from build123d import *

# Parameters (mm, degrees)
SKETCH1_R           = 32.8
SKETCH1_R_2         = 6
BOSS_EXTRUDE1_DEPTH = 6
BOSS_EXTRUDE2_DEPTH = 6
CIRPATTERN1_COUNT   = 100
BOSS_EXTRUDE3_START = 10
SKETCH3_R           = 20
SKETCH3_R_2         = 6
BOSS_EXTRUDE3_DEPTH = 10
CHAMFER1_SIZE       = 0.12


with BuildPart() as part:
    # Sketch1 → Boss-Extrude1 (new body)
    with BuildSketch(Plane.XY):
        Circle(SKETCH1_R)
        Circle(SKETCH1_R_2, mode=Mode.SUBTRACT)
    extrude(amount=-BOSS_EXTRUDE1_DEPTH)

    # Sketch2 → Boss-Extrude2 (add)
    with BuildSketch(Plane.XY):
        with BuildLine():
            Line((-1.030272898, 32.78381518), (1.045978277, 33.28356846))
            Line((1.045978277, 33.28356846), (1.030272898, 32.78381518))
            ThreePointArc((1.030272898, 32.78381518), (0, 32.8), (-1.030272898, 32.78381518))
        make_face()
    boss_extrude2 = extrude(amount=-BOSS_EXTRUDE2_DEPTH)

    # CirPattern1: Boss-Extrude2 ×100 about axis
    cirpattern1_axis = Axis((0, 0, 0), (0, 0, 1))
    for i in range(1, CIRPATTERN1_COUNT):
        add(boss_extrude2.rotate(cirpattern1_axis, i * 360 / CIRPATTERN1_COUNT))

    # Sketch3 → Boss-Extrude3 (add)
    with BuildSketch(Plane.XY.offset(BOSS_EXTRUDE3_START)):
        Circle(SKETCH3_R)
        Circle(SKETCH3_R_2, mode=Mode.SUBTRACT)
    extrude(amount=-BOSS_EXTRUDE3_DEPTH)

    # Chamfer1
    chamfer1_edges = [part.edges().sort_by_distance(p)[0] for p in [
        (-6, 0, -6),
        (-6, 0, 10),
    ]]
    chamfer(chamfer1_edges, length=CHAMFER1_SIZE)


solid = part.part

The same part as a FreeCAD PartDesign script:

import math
import FreeCAD as App
import Part
import Sketcher

V = App.Vector
Q = App.Units.Quantity


def edges_at(feature, points):
    """Names of the edges that pass closest to the given points."""
    edges = feature.Shape.Edges
    near = lambda p: min(range(len(edges)), key=lambda i: edges[i].distToShape(Part.Vertex(*p))[0])
    return sorted({f"Edge{near(p) + 1}" for p in points})

doc = App.newDocument("Part")
params = doc.addObject("Spreadsheet::Sheet", "Params")
for row, (alias, value) in enumerate([
    ("sketch1_diameter", "12 mm"),
    ("sketch1_diameter2", "65.6 mm"),
    ("pad1_length", "6 mm"),
    ("sketch2_radius", "32.8 mm"),
    ("sketch2_length", "0.5 mm"),
    ("pad2_length", "6 mm"),
    ("sketch3_diameter", "40 mm"),
    ("sketch3_diameter2", "12 mm"),
    ("pad3_length", "10 mm"),
    ("chamfer_size", "0.12 mm"),
], start=1):
    params.set(f"A{row}", alias)
    params.set(f"B{row}", "=" + value)
    params.setAlias(f"B{row}", alias)

body = doc.addObject("PartDesign::Body", "Body")

sketch1 = body.newObject("Sketcher::SketchObject", "Sketch")
sketch1.AttachmentSupport = (doc.getObject("XY_Plane"), [""])
sketch1.MapMode = "FlatFace"
sketch1.addGeometry(Part.Circle(V(0, 0, 0), V(0, 0, 1), 33), False)
sketch1.addGeometry(Part.Circle(V(0, 0, 0), V(0, 0, 1), 6), False)
sketch1.addConstraint(Sketcher.Constraint("Coincident", 0, 3, -1, 1))
sketch1.addConstraint(Sketcher.Constraint("Coincident", 1, 3, -1, 1))
sketch1.addConstraint(Sketcher.Constraint("Diameter", 1, Q("12 mm")))
sketch1.addConstraint(Sketcher.Constraint("Diameter", 0, Q("65.6 mm")))
sketch1.setExpression("Constraints[2]", "Params.sketch1_diameter")
sketch1.setExpression("Constraints[3]", "Params.sketch1_diameter2")
pad1 = body.newObject("PartDesign::Pad", "Pad")
pad1.Profile = sketch1
pad1.setExpression("Length", "Params.pad1_length")
pad1.Reversed = True

sketch2 = body.newObject("Sketcher::SketchObject", "Sketch001")
sketch2.AttachmentSupport = (doc.getObject("XY_Plane"), [""])
sketch2.MapMode = "FlatFace"
sketch2.addGeometry(Part.LineSegment(V(1.05, 33.28, 0), V(-1.03, 32.78, 0)), False)
sketch2.addGeometry(Part.ArcOfCircle(Part.Circle(V(0, 0, 0), V(0, 0, 1), 32.8), math.radians(88.2), math.radians(91.8)), False)
sketch2.addGeometry(Part.LineSegment(V(1.03, 32.78, 0), V(1.05, 33.28, 0)), False)
sketch2.addConstraint(Sketcher.Constraint("Coincident", 0, 2, 1, 2))
sketch2.addConstraint(Sketcher.Constraint("Coincident", 1, 1, 2, 1))
sketch2.addConstraint(Sketcher.Constraint("Coincident", 2, 2, 0, 1))
sketch2.addConstraint(Sketcher.Constraint("Coincident", 1, 3, -1, 1))
sketch2.addConstraint(Sketcher.Constraint("Horizontal", 0, 2, 1, 1))
sketch2.addConstraint(Sketcher.Constraint("Radius", 1, Q("32.8 mm")))
sketch2.addConstraint(Sketcher.Constraint("Angle", 2, Q("88.2 deg")))
sketch2.addConstraint(Sketcher.Constraint("Distance", 2, Q("0.5 mm")))
sketch2.addConstraint(Sketcher.Constraint("Distance", 0, Q("2.13555 mm")))
sketch2.setExpression("Constraints[5]", "Params.sketch2_radius")
sketch2.setExpression("Constraints[7]", "Params.sketch2_length")
pad2 = body.newObject("PartDesign::Pad", "Pad001")
pad2.Profile = sketch2
pad2.setExpression("Length", "Params.pad2_length")
pad2.Reversed = True
doc.recompute()

polarpattern = body.newObject("PartDesign::PolarPattern", "PolarPattern")
polarpattern.Originals = [pad2]
polarpattern.Axis = (doc.getObject("Z_Axis"), [""])
polarpattern.Angle = 360
polarpattern.Occurrences = 100
body.Tip = polarpattern

sketch3 = body.newObject("Sketcher::SketchObject", "Sketch002")
sketch3.AttachmentSupport = (doc.getObject("XY_Plane"), [""])
sketch3.MapMode = "FlatFace"
sketch3.AttachmentOffset = App.Placement(V(0, 0, 10), App.Rotation())
sketch3.addGeometry(Part.Circle(V(0, 0, 0), V(0, 0, 1), 20), False)
sketch3.addGeometry(Part.Circle(V(0, 0, 0), V(0, 0, 1), 6), False)
sketch3.addConstraint(Sketcher.Constraint("Coincident", 0, 3, -1, 1))
sketch3.addConstraint(Sketcher.Constraint("Coincident", 1, 3, -1, 1))
sketch3.addConstraint(Sketcher.Constraint("Diameter", 0, Q("40 mm")))
sketch3.addConstraint(Sketcher.Constraint("Diameter", 1, Q("12 mm")))
sketch3.setExpression("Constraints[2]", "Params.sketch3_diameter")
sketch3.setExpression("Constraints[3]", "Params.sketch3_diameter2")
pad3 = body.newObject("PartDesign::Pad", "Pad002")
pad3.Profile = sketch3
pad3.setExpression("Length", "Params.pad3_length")
pad3.Reversed = True
doc.recompute()

chamfer = body.newObject("PartDesign::Chamfer", "Chamfer")
chamfer.Base = (pad3, edges_at(pad3, [(-6, 0, -6), (-6, 0, 10)]))
chamfer.setExpression("Size", "Params.chamfer_size")

doc.recompute()
